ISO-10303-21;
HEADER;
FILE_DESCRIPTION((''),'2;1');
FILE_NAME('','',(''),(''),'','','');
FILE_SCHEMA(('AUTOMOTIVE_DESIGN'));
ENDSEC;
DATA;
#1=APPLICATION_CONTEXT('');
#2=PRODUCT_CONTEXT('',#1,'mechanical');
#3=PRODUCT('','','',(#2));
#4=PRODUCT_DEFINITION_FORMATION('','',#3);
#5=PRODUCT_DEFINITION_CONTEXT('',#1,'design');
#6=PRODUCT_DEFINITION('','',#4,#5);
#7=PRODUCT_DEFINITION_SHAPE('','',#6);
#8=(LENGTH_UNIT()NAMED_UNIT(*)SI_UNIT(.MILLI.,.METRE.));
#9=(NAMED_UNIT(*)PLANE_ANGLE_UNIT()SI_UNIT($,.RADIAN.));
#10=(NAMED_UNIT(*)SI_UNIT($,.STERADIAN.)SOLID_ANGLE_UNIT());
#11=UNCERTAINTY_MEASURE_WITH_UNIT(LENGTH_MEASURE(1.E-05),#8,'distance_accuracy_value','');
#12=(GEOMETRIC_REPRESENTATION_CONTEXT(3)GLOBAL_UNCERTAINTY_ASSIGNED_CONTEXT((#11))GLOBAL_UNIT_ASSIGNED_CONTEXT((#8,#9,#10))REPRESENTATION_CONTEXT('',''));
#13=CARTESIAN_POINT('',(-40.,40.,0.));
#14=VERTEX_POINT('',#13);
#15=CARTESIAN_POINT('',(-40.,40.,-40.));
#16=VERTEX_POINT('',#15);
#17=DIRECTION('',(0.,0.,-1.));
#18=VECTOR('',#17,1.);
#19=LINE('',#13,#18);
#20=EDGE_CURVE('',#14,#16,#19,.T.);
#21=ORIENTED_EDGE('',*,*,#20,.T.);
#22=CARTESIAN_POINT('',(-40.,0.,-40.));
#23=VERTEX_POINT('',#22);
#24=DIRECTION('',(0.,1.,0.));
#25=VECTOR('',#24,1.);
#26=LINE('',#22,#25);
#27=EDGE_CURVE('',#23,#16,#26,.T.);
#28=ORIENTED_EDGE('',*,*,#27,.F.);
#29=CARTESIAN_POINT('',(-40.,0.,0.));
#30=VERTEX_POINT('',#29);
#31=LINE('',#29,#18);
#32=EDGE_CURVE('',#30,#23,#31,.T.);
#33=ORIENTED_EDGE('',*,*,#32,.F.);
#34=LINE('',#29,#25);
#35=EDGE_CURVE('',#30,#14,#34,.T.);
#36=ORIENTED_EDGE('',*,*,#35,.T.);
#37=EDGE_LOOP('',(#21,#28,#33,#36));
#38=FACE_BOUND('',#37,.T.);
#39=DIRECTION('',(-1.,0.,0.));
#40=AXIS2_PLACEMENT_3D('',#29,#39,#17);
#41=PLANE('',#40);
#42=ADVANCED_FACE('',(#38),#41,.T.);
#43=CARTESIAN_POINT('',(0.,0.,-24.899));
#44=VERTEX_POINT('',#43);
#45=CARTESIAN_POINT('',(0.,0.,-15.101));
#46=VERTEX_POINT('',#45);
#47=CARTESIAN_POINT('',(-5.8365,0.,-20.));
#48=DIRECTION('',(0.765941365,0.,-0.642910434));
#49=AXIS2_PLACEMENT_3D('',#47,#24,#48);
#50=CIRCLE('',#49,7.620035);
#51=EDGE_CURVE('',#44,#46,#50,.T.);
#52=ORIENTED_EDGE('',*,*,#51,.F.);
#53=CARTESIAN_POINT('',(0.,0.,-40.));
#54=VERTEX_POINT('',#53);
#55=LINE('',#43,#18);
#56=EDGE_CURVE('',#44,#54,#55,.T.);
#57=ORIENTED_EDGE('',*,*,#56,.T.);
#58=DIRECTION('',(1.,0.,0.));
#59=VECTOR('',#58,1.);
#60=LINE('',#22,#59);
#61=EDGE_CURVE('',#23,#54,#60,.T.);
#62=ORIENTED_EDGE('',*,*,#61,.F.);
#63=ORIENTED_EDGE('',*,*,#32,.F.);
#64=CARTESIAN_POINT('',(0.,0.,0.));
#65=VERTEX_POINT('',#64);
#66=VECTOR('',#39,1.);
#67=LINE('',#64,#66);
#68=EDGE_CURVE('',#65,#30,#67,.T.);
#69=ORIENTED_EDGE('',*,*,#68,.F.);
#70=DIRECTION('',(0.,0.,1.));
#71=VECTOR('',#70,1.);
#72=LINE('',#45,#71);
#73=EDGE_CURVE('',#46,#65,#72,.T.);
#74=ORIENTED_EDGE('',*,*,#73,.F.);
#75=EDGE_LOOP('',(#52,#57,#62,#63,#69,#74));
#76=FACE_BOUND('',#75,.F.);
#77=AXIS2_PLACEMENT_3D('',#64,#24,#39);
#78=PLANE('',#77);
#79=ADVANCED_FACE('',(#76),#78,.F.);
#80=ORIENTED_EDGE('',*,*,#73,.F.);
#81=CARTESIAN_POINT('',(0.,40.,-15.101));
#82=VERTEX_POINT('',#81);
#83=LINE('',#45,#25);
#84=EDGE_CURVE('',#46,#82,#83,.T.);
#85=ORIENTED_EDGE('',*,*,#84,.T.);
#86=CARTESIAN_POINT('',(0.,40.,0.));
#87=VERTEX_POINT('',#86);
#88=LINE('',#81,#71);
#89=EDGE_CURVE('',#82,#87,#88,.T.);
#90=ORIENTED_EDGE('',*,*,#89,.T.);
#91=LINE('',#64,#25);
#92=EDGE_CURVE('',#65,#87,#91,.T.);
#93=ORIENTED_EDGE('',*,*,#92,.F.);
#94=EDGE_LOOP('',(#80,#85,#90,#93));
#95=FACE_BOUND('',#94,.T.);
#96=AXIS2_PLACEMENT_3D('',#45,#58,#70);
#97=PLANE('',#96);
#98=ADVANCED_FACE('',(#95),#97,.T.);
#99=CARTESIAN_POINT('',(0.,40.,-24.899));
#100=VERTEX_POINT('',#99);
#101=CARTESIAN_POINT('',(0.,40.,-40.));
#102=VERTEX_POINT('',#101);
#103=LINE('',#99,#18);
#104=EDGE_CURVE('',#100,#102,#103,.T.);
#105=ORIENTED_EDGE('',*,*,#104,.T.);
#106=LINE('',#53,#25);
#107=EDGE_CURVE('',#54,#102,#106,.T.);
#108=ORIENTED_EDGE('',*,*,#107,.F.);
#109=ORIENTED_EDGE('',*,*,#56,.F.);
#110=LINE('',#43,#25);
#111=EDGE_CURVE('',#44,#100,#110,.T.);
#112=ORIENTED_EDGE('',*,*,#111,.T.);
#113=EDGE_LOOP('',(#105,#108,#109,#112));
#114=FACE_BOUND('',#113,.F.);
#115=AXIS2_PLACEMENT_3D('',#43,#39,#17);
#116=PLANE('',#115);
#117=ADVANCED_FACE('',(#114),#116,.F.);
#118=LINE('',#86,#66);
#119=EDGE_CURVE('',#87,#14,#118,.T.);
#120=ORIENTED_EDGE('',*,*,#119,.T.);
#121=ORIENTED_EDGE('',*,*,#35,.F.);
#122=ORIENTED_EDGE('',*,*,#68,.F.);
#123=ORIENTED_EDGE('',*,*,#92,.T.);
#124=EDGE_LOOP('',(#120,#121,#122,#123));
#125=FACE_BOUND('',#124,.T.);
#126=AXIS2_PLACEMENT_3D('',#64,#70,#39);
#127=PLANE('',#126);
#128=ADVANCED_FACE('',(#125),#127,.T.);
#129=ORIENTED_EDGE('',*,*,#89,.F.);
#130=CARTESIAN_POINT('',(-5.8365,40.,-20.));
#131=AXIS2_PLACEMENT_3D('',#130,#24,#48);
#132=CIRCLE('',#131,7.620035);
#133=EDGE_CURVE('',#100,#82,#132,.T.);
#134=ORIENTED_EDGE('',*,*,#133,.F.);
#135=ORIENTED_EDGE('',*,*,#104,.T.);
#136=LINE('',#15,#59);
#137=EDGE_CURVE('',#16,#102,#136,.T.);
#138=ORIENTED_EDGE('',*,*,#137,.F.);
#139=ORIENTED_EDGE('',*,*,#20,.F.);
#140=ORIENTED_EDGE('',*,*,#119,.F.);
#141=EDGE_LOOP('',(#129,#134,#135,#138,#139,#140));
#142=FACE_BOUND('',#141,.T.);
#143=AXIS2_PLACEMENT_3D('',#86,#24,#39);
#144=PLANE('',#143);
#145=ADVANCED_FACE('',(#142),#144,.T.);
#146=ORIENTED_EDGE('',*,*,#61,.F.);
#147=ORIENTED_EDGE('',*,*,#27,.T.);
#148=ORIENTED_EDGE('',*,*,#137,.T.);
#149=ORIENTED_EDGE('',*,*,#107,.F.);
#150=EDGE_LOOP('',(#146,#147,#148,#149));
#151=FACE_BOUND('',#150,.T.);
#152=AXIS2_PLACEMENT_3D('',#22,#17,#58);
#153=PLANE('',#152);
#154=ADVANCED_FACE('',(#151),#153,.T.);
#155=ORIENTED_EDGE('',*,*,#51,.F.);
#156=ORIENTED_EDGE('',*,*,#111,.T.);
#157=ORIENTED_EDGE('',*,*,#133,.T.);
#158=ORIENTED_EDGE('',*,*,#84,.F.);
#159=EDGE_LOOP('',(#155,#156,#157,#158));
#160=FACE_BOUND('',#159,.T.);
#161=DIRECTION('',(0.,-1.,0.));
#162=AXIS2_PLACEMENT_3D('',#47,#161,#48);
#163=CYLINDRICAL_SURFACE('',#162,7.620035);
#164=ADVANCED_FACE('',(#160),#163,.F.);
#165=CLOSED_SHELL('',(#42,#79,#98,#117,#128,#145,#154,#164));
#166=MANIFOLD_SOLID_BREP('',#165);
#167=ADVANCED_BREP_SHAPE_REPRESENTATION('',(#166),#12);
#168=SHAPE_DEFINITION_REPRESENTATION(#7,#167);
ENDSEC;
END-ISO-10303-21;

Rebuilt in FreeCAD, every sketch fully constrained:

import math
import FreeCAD as App
import Part
import Sketcher
Q = App.Units.Quantity

doc = App.newDocument("Part")
body = doc.addObject("PartDesign::Body", "Body")

sketch1 = body.newObject("Sketcher::SketchObject", "Sketch")
sketch1.AttachmentSupport = (doc.getObject("XZ_Plane"), [""])
sketch1.MapMode = "FlatFace"
sketch1.addGeometry([
    Part.LineSegment(App.Vector(-40, 0, 0), App.Vector(0, 0, 0)),
    Part.LineSegment(App.Vector(0, 0, 0), App.Vector(0, -15, 0)),
    Part.ArcOfCircle(Part.Circle(App.Vector(-6, -20, 0), App.Vector(0, 0, 1), 8), math.radians(40), math.radians(320)),
    Part.LineSegment(App.Vector(0, -25, 0), App.Vector(0, -40, 0)),
    Part.LineSegment(App.Vector(0, -40, 0), App.Vector(-40, -40, 0)),
    Part.LineSegment(App.Vector(-40, -40, 0), App.Vector(-40, 0, 0)),
], False)
sketch1.addConstraint([
    Sketcher.Constraint("Coincident", 0, 2, 1, 1),
    Sketcher.Constraint("Coincident", 1, 2, 2, 1),
    Sketcher.Constraint("Coincident", 2, 2, 3, 1),
    Sketcher.Constraint("Coincident", 3, 2, 4, 1),
    Sketcher.Constraint("Coincident", 4, 2, 5, 1),
    Sketcher.Constraint("Coincident", 5, 2, 0, 1),
    Sketcher.Constraint("Horizontal", 0),
    Sketcher.Constraint("Vertical", 1),
    Sketcher.Constraint("Vertical", 3),
    Sketcher.Constraint("Horizontal", 4),
    Sketcher.Constraint("Vertical", 5),
    Sketcher.Constraint("Coincident", 0, 2, -1, 1),
    Sketcher.Constraint("PointOnObject", 2, 2, -2),
    Sketcher.Constraint("Equal", 1, 3),
    Sketcher.Constraint("Equal", 4, 5),
    Sketcher.Constraint("Radius", 2, Q("0.3 in")),
    Sketcher.Constraint("DistanceX", 0, 1, 0, 2, Q("1.5748 in")),
    Sketcher.Constraint("DistanceY", 1, 2, 1, 1, Q("15.101 mm")),
])
pad1 = body.newObject("PartDesign::Pad", "Pad")
pad1.Profile = sketch1
pad1.Length = Q("1.5748031 in")
pad1.Reversed = True

doc.recompute()
